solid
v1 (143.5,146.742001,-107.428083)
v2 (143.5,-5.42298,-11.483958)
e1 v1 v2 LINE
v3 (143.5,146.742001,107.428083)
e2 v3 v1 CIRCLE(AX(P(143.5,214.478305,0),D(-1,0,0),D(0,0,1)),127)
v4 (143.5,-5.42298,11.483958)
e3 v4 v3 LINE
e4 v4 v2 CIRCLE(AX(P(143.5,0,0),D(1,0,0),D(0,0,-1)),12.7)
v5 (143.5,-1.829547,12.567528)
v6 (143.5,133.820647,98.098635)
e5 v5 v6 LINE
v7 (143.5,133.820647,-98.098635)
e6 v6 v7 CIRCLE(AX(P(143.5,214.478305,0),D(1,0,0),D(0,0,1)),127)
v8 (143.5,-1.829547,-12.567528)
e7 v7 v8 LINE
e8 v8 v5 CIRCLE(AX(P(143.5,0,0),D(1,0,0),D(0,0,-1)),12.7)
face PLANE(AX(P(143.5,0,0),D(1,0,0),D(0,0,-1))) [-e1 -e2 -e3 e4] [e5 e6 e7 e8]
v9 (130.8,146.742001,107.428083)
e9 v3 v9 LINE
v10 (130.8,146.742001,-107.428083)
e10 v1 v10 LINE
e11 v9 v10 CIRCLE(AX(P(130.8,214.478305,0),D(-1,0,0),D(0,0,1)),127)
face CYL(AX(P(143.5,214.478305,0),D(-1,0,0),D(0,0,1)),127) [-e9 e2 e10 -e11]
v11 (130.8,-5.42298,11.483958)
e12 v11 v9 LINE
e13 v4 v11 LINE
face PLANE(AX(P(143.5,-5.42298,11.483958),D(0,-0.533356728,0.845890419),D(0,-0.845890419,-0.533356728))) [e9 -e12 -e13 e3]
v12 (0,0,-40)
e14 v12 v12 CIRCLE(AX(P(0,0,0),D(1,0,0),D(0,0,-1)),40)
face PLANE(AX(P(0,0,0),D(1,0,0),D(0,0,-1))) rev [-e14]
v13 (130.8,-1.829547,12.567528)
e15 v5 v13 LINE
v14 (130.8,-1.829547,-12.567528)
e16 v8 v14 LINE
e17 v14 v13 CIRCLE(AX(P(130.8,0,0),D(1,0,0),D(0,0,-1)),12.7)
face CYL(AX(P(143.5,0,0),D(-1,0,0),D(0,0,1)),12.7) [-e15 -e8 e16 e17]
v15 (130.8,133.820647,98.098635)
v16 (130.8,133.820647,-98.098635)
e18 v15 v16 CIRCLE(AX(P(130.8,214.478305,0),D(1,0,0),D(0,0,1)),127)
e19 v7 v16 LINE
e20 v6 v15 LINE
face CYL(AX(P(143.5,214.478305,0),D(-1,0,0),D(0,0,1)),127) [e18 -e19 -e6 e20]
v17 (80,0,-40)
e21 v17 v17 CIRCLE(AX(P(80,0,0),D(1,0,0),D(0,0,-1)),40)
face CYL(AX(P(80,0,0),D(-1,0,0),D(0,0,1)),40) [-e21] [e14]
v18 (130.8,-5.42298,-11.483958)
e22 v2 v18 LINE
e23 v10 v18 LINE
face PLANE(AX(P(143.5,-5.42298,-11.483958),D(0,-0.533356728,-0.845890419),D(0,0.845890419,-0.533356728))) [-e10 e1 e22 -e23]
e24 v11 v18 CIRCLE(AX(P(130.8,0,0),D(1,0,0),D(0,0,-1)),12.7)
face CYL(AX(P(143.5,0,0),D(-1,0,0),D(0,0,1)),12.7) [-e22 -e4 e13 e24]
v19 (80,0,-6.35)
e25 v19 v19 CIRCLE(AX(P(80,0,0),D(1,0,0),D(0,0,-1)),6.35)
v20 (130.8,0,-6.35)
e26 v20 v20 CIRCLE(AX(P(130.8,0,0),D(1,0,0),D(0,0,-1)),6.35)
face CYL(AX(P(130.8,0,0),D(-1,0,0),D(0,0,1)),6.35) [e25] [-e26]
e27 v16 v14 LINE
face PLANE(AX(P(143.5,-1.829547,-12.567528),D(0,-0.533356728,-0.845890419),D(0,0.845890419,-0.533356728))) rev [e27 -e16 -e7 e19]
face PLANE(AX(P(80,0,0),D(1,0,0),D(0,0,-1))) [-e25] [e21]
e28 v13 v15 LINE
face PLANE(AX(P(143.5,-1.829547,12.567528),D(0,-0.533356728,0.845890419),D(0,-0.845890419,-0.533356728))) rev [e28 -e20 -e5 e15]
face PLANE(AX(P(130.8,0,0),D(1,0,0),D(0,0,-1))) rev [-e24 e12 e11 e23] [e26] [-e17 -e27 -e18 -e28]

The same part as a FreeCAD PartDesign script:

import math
import FreeCAD as App
import Part
import Sketcher
Q = App.Units.Quantity

doc = App.newDocument("Part")
body = doc.addObject("PartDesign::Body", "Body")

# Sketch on YZ plane
sketch1 = body.newObject("Sketcher::SketchObject", "Sketch")
sketch1.AttachmentSupport = (doc.getObject("YZ_Plane"), [""])
sketch1.MapMode = "FlatFace"
sketch1.addGeometry(Part.Circle(App.Vector(0, 0, 0), App.Vector(0, 0, 1), 40), False)
sketch1.addConstraint([
    Sketcher.Constraint("Coincident", 0, 3, -1, 1),
    Sketcher.Constraint("Diameter", 0, Q("80 mm")),
])
pad1 = body.newObject("PartDesign::Pad", "Pad")
pad1.Profile = sketch1
pad1.Length = 80

# Sketch on YZ plane
sketch2 = body.newObject("Sketcher::SketchObject", "Sketch001")
sketch2.AttachmentSupport = (doc.getObject("YZ_Plane"), [""])
sketch2.MapMode = "FlatFace"
sketch2.AttachmentOffset = App.Placement(App.Vector(0, 0, 80), App.Rotation())
sketch2.addGeometry(Part.Circle(App.Vector(0, 0, 0), App.Vector(0, 0, 1), 6), False)
sketch2.addConstraint([
    Sketcher.Constraint("Coincident", 0, 3, -1, 1),
    Sketcher.Constraint("Diameter", 0, Q("0.5 in")),
])
pad2 = body.newObject("PartDesign::Pad", "Pad001")
pad2.Profile = sketch2
pad2.Length = Q("2 in")

# Sketch on YZ plane
sketch3 = body.newObject("Sketcher::SketchObject", "Sketch002")
sketch3.AttachmentSupport = (doc.getObject("YZ_Plane"), [""])
sketch3.MapMode = "FlatFace"
sketch3.AttachmentOffset = App.Placement(App.Vector(0, 0, 130.8), App.Rotation())
sketch3.addGeometry(Part.Circle(App.Vector(0, 0, 0), App.Vector(0, 0, 1), 13), False)
sketch3.addConstraint([
    Sketcher.Constraint("Coincident", 0, 3, -1, 1),
    Sketcher.Constraint("Diameter", 0, Q("1 in")),
])
pad3 = body.newObject("PartDesign::Pad", "Pad002")
pad3.Profile = sketch3
pad3.Length = Q("0.5 in")

# Sketch on YZ plane
sketch4 = body.newObject("Sketcher::SketchObject", "Sketch003")
sketch4.AttachmentSupport = (doc.getObject("YZ_Plane"), [""])
sketch4.MapMode = "FlatFace"
sketch4.AttachmentOffset = App.Placement(App.Vector(0, 0, 130.8), App.Rotation())
sketch4.addGeometry([
    Part.LineSegment(App.Vector(-5, 11, 0), App.Vector(147, 107, 0)),  # 0
    Part.ArcOfCircle(Part.Circle(App.Vector(214, 0, 0), App.Vector(0, 0, 1), 127), math.radians(-122), math.radians(122)),  # 1
    Part.LineSegment(App.Vector(147, -107, 0), App.Vector(-5, -11, 0)),  # 2
    Part.ArcOfCircle(Part.Circle(App.Vector(0, 0, 0), App.Vector(0, 0, 1), 13), math.radians(115), math.radians(245)),  # 3
    Part.LineSegment(App.Vector(134, 98, 0), App.Vector(-2, 13, 0)),  # 4
    Part.ArcOfCircle(Part.Circle(App.Vector(0, 0, 0), App.Vector(0, 0, 1), 13), math.radians(-98), math.radians(98)),  # 5
    Part.LineSegment(App.Vector(-2, -13, 0), App.Vector(134, -98, 0)),  # 6
    Part.ArcOfCircle(Part.Circle(App.Vector(214, 0, 0), App.Vector(0, 0, 1), 127), math.radians(129), math.radians(231)),  # 7
], False)
sketch4.addConstraint([
    Sketcher.Constraint("Tangent", 0, 2, 1, 2),
    Sketcher.Constraint("Tangent", 1, 1, 2, 1),
    Sketcher.Constraint("Coincident", 2, 2, 3, 2),
    Sketcher.Constraint("Coincident", 3, 1, 0, 1),
    Sketcher.Constraint("Coincident", 4, 2, 5, 2),
    Sketcher.Constraint("Coincident", 5, 1, 6, 1),
    Sketcher.Constraint("Coincident", 6, 2, 7, 2),
    Sketcher.Constraint("Coincident", 7, 1, 4, 1),
    Sketcher.Constraint("Coincident", 3, 3, -1, 1),
    Sketcher.Constraint("Coincident", 5, 3, -1, 1),
    Sketcher.Constraint("Coincident", 7, 3, 1, 3),
    Sketcher.Constraint("Equal", 3, 5),
    Sketcher.Constraint("Equal", 1, 7),
    Sketcher.Constraint("Symmetric", 0, 2, 1, 1, -1),
    Sketcher.Constraint("Parallel", 0, 4),
    Sketcher.Constraint("Parallel", 2, 6),
    Sketcher.Constraint("Vertical", 4, 2, 5, 1),
    Sketcher.Constraint("Radius", 1, Q("5 in")),
    Sketcher.Constraint("Radius", 3, Q("0.5 in")),
    Sketcher.Constraint("DistanceX", -1, 1, 0, 2, Q("146.742001 mm")),
    Sketcher.Constraint("Distance", 4, Q("160.363791 mm")),
    Sketcher.Constraint("DistanceX", 2, 2, -1, 1, Q("5.42298 mm")),
])
pad4 = body.newObject("PartDesign::Pad", "Pad003")
pad4.Profile = sketch4
pad4.Length = Q("0.5 in")

doc.recompute()
